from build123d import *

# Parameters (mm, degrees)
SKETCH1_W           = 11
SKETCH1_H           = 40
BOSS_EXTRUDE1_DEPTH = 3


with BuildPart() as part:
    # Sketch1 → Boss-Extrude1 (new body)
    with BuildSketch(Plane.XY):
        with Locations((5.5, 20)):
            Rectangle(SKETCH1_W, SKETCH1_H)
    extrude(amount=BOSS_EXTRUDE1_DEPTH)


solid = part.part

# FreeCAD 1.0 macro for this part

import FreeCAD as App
import Part
import Sketcher
from FreeCAD import Vector
Q = App.Units.Quantity

doc = App.newDocument("Part")
body = doc.addObject("PartDesign::Body", "Body")

# Sketch on XY plane
sketch1 = body.newObject("Sketcher::SketchObject", "Sketch")
sketch1.AttachmentSupport = (doc.getObject("XY_Plane"), [""])
sketch1.MapMode = "FlatFace"
sketch1.addGeometry(Part.LineSegment(Vector(0, 40, 0), Vector(0, 0, 0)), False)
sketch1.addGeometry(Part.LineSegment(Vector(0, 0, 0), Vector(11, 0, 0)), False)
sketch1.addGeometry(Part.LineSegment(Vector(11, 0, 0), Vector(11, 40, 0)), False)
sketch1.addGeometry(Part.LineSegment(Vector(11, 40, 0), Vector(0, 40, 0)), False)
sketch1.addConstraint(Sketcher.Constraint("Coincident", 0, 2, 1, 1))
sketch1.addConstraint(Sketcher.Constraint("Coincident", 1, 2, 2, 1))
sketch1.addConstraint(Sketcher.Constraint("Coincident", 2, 2, 3, 1))
sketch1.addConstraint(Sketcher.Constraint("Coincident", 3, 2, 0, 1))
sketch1.addConstraint(Sketcher.Constraint("Vertical", 0))
sketch1.addConstraint(Sketcher.Constraint("Horizontal", 1))
sketch1.addConstraint(Sketcher.Constraint("Vertical", 2))
sketch1.addConstraint(Sketcher.Constraint("Horizontal", 3))
sketch1.addConstraint(Sketcher.Constraint("Coincident", 0, 2, -1, 1))
sketch1.addConstraint(Sketcher.Constraint("DistanceX", 1, 1, 1, 2, Q("11 mm")))
sketch1.addConstraint(Sketcher.Constraint("DistanceY", 0, 2, 0, 1, Q("40 mm")))
pad1 = body.newObject("PartDesign::Pad", "Pad")
pad1.Profile = sketch1
pad1.Length = 3

doc.recompute()
